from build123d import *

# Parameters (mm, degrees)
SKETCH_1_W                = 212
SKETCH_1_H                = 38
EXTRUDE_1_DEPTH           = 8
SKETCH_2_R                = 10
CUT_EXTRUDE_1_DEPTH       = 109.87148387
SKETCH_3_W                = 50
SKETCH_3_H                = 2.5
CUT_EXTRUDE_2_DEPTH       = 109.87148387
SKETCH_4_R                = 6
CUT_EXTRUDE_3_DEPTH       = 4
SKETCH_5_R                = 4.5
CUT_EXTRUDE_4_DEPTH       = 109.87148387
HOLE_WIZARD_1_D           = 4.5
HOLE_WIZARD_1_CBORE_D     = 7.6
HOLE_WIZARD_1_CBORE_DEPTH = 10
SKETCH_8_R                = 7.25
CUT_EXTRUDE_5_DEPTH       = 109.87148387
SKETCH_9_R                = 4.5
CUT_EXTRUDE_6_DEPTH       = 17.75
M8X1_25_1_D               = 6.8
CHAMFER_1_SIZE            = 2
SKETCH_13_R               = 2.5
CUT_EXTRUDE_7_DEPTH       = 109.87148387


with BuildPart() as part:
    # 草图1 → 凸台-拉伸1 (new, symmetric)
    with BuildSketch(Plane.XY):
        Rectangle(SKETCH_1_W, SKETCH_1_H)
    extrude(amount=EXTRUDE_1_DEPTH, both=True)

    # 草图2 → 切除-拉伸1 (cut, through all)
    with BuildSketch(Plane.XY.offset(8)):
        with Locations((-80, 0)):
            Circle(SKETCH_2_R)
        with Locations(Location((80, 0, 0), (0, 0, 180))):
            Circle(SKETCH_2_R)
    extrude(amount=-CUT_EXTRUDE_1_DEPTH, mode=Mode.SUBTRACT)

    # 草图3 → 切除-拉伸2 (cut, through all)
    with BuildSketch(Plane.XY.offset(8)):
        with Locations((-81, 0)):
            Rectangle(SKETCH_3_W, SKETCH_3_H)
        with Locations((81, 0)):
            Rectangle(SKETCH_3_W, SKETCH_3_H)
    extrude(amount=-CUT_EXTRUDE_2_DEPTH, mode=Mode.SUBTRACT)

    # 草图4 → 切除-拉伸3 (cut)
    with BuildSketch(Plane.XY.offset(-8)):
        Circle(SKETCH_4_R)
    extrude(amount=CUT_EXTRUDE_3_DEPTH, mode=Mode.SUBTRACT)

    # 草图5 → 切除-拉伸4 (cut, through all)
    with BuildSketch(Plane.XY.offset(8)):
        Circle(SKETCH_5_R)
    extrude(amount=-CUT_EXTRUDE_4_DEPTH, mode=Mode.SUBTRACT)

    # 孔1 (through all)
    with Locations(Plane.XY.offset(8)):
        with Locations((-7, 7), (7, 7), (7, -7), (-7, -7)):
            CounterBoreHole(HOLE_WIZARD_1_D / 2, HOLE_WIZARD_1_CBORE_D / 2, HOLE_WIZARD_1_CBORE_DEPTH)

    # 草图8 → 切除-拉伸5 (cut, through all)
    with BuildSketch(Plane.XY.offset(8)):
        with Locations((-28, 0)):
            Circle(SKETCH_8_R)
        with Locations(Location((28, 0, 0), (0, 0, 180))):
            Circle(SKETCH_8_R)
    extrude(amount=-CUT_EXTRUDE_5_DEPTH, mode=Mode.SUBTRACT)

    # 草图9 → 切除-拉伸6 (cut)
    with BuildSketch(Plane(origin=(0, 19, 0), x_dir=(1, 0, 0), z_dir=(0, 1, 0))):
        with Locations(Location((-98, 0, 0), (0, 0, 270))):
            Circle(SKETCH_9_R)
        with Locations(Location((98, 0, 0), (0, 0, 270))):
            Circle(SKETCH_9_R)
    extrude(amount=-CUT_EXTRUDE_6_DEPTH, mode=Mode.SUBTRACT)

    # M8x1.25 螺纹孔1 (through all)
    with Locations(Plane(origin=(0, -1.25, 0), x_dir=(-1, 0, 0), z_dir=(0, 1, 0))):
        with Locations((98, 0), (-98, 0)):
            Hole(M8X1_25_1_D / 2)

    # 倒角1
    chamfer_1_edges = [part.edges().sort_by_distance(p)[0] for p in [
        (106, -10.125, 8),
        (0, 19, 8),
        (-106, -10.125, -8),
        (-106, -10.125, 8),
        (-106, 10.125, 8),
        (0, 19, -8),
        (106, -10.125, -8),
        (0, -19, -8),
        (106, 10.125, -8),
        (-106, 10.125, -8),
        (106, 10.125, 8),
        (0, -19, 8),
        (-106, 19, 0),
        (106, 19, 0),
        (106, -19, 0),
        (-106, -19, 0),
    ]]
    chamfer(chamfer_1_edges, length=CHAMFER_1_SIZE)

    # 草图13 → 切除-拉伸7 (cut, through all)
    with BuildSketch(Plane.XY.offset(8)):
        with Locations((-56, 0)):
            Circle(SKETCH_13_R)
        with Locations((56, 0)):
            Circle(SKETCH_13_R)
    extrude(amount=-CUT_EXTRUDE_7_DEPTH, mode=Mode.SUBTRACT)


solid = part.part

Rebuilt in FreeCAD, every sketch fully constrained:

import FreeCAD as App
import Part
import Sketcher
from FreeCAD import Vector


def edges_at(feature, points):
    """Names of the edges that pass closest to the given points."""
    edges = feature.Shape.Edges
    near = lambda p: min(range(len(edges)), key=lambda i: edges[i].distToShape(Part.Vertex(*p))[0])
    return sorted({f"Edge{near(p) + 1}" for p in points})

doc = App.newDocument("Part")
body = doc.addObject("PartDesign::Body", "Body")

sketch1 = body.newObject("Sketcher::SketchObject", "Sketch")
sketch1.AttachmentSupport = (doc.getObject("XY_Plane"), [""])
sketch1.MapMode = "FlatFace"
sketch1.addGeometry(Part.LineSegment(Vector(-106, 19, 0), Vector(-106, -19, 0)), False)
sketch1.addGeometry(Part.LineSegment(Vector(-106, -19, 0), Vector(106, -19, 0)), False)
sketch1.addGeometry(Part.LineSegment(Vector(106, -19, 0), Vector(106, 19, 0)), False)
sketch1.addGeometry(Part.LineSegment(Vector(106, 19, 0), Vector(-106, 19, 0)), False)
sketch1.addConstraint(Sketcher.Constraint("Coincident", 0, 2, 1, 1))
sketch1.addConstraint(Sketcher.Constraint("Coincident", 1, 2, 2, 1))
sketch1.addConstraint(Sketcher.Constraint("Coincident", 2, 2, 3, 1))
sketch1.addConstraint(Sketcher.Constraint("Coincident", 3, 2, 0, 1))
sketch1.addConstraint(Sketcher.Constraint("Vertical", 0))
sketch1.addConstraint(Sketcher.Constraint("Horizontal", 1))
sketch1.addConstraint(Sketcher.Constraint("Vertical", 2))
sketch1.addConstraint(Sketcher.Constraint("Horizontal", 3))
sketch1.addConstraint(Sketcher.Constraint("Symmetric", 0, 2, 2, 2, -1, 1))
sketch1.addConstraint(Sketcher.Constraint("DistanceX", 1, 1, 1, 2, 212.0))
sketch1.addConstraint(Sketcher.Constraint("DistanceY", 0, 2, 0, 1, 38.0))
pad1 = body.newObject("PartDesign::Pad", "Pad")
pad1.Profile = sketch1
pad1.Length = 16
pad1.Midplane = True

sketch2 = body.newObject("Sketcher::SketchObject", "Sketch001")
sketch2.AttachmentSupport = (doc.getObject("XY_Plane"), [""])
sketch2.MapMode = "FlatFace"
sketch2.AttachmentOffset = App.Placement(Vector(0, 0, 8), App.Rotation())
sketch2.addGeometry(Part.Circle(Vector(-80, 0, 0), Vector(0, 0, 1), 10), False)
sketch2.addGeometry(Part.Circle(Vector(80, 0, 0), Vector(0, 0, 1), 10), False)
sketch2.addConstraint(Sketcher.Constraint("Equal", 0, 1))
sketch2.addConstraint(Sketcher.Constraint("Symmetric", 0, 3, 1, 3, -1, 1))
sketch2.addConstraint(Sketcher.Constraint("PointOnObject", 0, 3, -1))
sketch2.addConstraint(Sketcher.Constraint("Diameter", 0, 20.0))
sketch2.addConstraint(Sketcher.Constraint("DistanceX", 0, 3, -1, 1, 80.0))
pocket1 = body.newObject("PartDesign::Pocket", "Pocket")
pocket1.Profile = sketch2
pocket1.Type = "ThroughAll"

sketch3 = body.newObject("Sketcher::SketchObject", "Sketch002")
sketch3.AttachmentSupport = (doc.getObject("XY_Plane"), [""])
sketch3.MapMode = "FlatFace"
sketch3.AttachmentOffset = App.Placement(Vector(0, 0, 8), App.Rotation())
sketch3.addGeometry(Part.LineSegment(Vector(-106, 1.25, 0), Vector(-106, -1.25, 0)), False)
sketch3.addGeometry(Part.LineSegment(Vector(-106, -1.25, 0), Vector(-56, -1.25, 0)), False)
sketch3.addGeometry(Part.LineSegment(Vector(-56, -1.25, 0), Vector(-56, 1.25, 0)), False)
sketch3.addGeometry(Part.LineSegment(Vector(-56, 1.25, 0), Vector(-106, 1.25, 0)), False)
sketch3.addGeometry(Part.LineSegment(Vector(56, 1.25, 0), Vector(56, -1.25, 0)), False)
sketch3.addGeometry(Part.LineSegment(Vector(56, -1.25, 0), Vector(106, -1.25, 0)), False)
sketch3.addGeometry(Part.LineSegment(Vector(106, -1.25, 0), Vector(106, 1.25, 0)), False)
sketch3.addGeometry(Part.LineSegment(Vector(106, 1.25, 0), Vector(56, 1.25, 0)), False)
sketch3.addConstraint(Sketcher.Constraint("Coincident", 0, 2, 1, 1))
sketch3.addConstraint(Sketcher.Constraint("Coincident", 1, 2, 2, 1))
sketch3.addConstraint(Sketcher.Constraint("Coincident", 2, 2, 3, 1))
sketch3.addConstraint(Sketcher.Constraint("Coincident", 3, 2, 0, 1))
sketch3.addConstraint(Sketcher.Constraint("Coincident", 4, 2, 5, 1))
sketch3.addConstraint(Sketcher.Constraint("Coincident", 5, 2, 6, 1))
sketch3.addConstraint(Sketcher.Constraint("Coincident", 6, 2, 7, 1))
sketch3.addConstraint(Sketcher.Constraint("Coincident", 7, 2, 4, 1))
sketch3.addConstraint(Sketcher.Constraint("Vertical", 0))
sketch3.addConstraint(Sketcher.Constraint("Horizontal", 1))
sketch3.addConstraint(Sketcher.Constraint("Vertical", 2))
sketch3.addConstraint(Sketcher.Constraint("Horizontal", 3))
sketch3.addConstraint(Sketcher.Constraint("Vertical", 4))
sketch3.addConstraint(Sketcher.Constraint("Horizontal", 5))
sketch3.addConstraint(Sketcher.Constraint("Vertical", 6))
sketch3.addConstraint(Sketcher.Constraint("Horizontal", 7))
sketch3.addConstraint(Sketcher.Constraint("Symmetric", 2, 2, 4, 2, -1, 1))
sketch3.addConstraint(Sketcher.Constraint("Symmetric", 0, 2, 6, 2, -1, 1))
sketch3.addConstraint(Sketcher.Constraint("Horizontal", 1, 2, 4, 2))
sketch3.addConstraint(Sketcher.Constraint("DistanceX", 1, 1, 1, 2, 50.0))
sketch3.addConstraint(Sketcher.Constraint("DistanceY", 0, 2, 0, 1, 2.5))
sketch3.addConstraint(Sketcher.Constraint("DistanceX", 0, 2, -1, 1, 106.0))
pocket2 = body.newObject("PartDesign::Pocket", "Pocket001")
pocket2.Profile = sketch3
pocket2.Type = "ThroughAll"

sketch4 = body.newObject("Sketcher::SketchObject", "Sketch003")
sketch4.AttachmentSupport = (doc.getObject("XY_Plane"), [""])
sketch4.MapMode = "FlatFace"
sketch4.AttachmentOffset = App.Placement(Vector(0, 0, -8), App.Rotation())
sketch4.addGeometry(Part.Circle(Vector(0, 0, 0), Vector(0, 0, 1), 6), False)
sketch4.addConstraint(Sketcher.Constraint("Coincident", 0, 3, -1, 1))
sketch4.addConstraint(Sketcher.Constraint("Diameter", 0, 12.0))
pocket3 = body.newObject("PartDesign::Pocket", "Pocket002")
pocket3.Profile = sketch4
pocket3.Length = 4
pocket3.Reversed = True

sketch5 = body.newObject("Sketcher::SketchObject", "Sketch004")
sketch5.AttachmentSupport = (doc.getObject("XY_Plane"), [""])
sketch5.MapMode = "FlatFace"
sketch5.AttachmentOffset = App.Placement(Vector(0, 0, 8), App.Rotation())
sketch5.addGeometry(Part.Circle(Vector(0, 0, 0), Vector(0, 0, 1), 4.5), False)
sketch5.addConstraint(Sketcher.Constraint("Coincident", 0, 3, -1, 1))
sketch5.addConstraint(Sketcher.Constraint("Diameter", 0, 9.0))
pocket4 = body.newObject("PartDesign::Pocket", "Pocket003")
pocket4.Profile = sketch5
pocket4.Type = "ThroughAll"

sketch6 = body.newObject("Sketcher::SketchObject", "Sketch005")
sketch6.AttachmentSupport = (doc.getObject("XY_Plane"), [""])
sketch6.MapMode = "FlatFace"
sketch6.AttachmentOffset = App.Placement(Vector(0, 0, 8), App.Rotation())
sketch6.addGeometry(Part.Circle(Vector(-7, 7, 0), Vector(0, 0, 1), 2.25), False)
sketch6.addGeometry(Part.Circle(Vector(7, 7, 0), Vector(0, 0, 1), 2.25), False)
sketch6.addGeometry(Part.Circle(Vector(7, -7, 0), Vector(0, 0, 1), 2.25), False)
sketch6.addGeometry(Part.Circle(Vector(-7, -7, 0), Vector(0, 0, 1), 2.25), False)
sketch6.addConstraint(Sketcher.Constraint("Equal", 0, 1))
sketch6.addConstraint(Sketcher.Constraint("Equal", 1, 2))
sketch6.addConstraint(Sketcher.Constraint("Equal", 2, 3))
sketch6.addConstraint(Sketcher.Constraint("Symmetric", 0, 3, 2, 3, -1, 1))
sketch6.addConstraint(Sketcher.Constraint("Symmetric", 1, 3, 3, 3, -1, 1))
sketch6.addConstraint(Sketcher.Constraint("Symmetric", 0, 3, 1, 3, -2))
sketch6.addConstraint(Sketcher.Constraint("Diameter", 0, 4.5))
sketch6.addConstraint(Sketcher.Constraint("DistanceX", 0, 3, -1, 1, 7.0))
sketch6.addConstraint(Sketcher.Constraint("DistanceY", -1, 1, 0, 3, 7.0))
doc.recompute()
hole = body.newObject("PartDesign::Hole", "Hole")
hole.Profile = sketch6
hole.ThreadType = "None"
hole.Diameter = 4.5
hole.DepthType = "ThroughAll"
hole.HoleCutType = "Counterbore"
hole.HoleCutDiameter = 7.6
hole.HoleCutDepth = 10

sketch7 = body.newObject("Sketcher::SketchObject", "Sketch006")
sketch7.AttachmentSupport = (doc.getObject("XY_Plane"), [""])
sketch7.MapMode = "FlatFace"
sketch7.AttachmentOffset = App.Placement(Vector(0, 0, 8), App.Rotation())
sketch7.addGeometry(Part.Circle(Vector(-28, 0, 0), Vector(0, 0, 1), 7.25), False)
sketch7.addGeometry(Part.Circle(Vector(28, 0, 0), Vector(0, 0, 1), 7.25), False)
sketch7.addConstraint(Sketcher.Constraint("Equal", 0, 1))
sketch7.addConstraint(Sketcher.Constraint("Symmetric", 0, 3, 1, 3, -1, 1))
sketch7.addConstraint(Sketcher.Constraint("PointOnObject", 0, 3, -1))
sketch7.addConstraint(Sketcher.Constraint("Diameter", 0, 14.5))
sketch7.addConstraint(Sketcher.Constraint("DistanceX", 0, 3, -1, 1, 28.0))
pocket5 = body.newObject("PartDesign::Pocket", "Pocket004")
pocket5.Profile = sketch7
pocket5.Type = "ThroughAll"

sketch8 = body.newObject("Sketcher::SketchObject", "Sketch007")
sketch8.AttachmentSupport = (doc.getObject("XZ_Plane"), [""])
sketch8.MapMode = "FlatFace"
sketch8.AttachmentOffset = App.Placement(Vector(0, 0, -19), App.Rotation())
sketch8.addGeometry(Part.Circle(Vector(-98, 0, 0), Vector(0, 0, 1), 4.5), False)
sketch8.addGeometry(Part.Circle(Vector(98, 0, 0), Vector(0, 0, 1), 4.5), False)
sketch8.addConstraint(Sketcher.Constraint("Equal", 0, 1))
sketch8.addConstraint(Sketcher.Constraint("Symmetric", 0, 3, 1, 3, -1, 1))
sketch8.addConstraint(Sketcher.Constraint("PointOnObject", 0, 3, -1))
sketch8.addConstraint(Sketcher.Constraint("Diameter", 0, 9.0))
sketch8.addConstraint(Sketcher.Constraint("DistanceX", 0, 3, -1, 1, 98.0))
pocket6 = body.newObject("PartDesign::Pocket", "Pocket005")
pocket6.Profile = sketch8
pocket6.Length = 17.75
pocket6.Reversed = True

sketch9 = body.newObject("Sketcher::SketchObject", "Sketch008")
sketch9.AttachmentSupport = (doc.getObject("XZ_Plane"), [""])
sketch9.MapMode = "FlatFace"
sketch9.AttachmentOffset = App.Placement(Vector(0, 0, 1.25), App.Rotation())
sketch9.addGeometry(Part.Circle(Vector(-98, 0, 0), Vector(0, 0, 1), 3.4), False)
sketch9.addGeometry(Part.Circle(Vector(98, 0, 0), Vector(0, 0, 1), 3.4), False)
sketch9.addConstraint(Sketcher.Constraint("Equal", 0, 1))
sketch9.addConstraint(Sketcher.Constraint("Symmetric", 0, 3, 1, 3, -1, 1))
sketch9.addConstraint(Sketcher.Constraint("PointOnObject", 0, 3, -1))
sketch9.addConstraint(Sketcher.Constraint("Diameter", 0, 6.8))
sketch9.addConstraint(Sketcher.Constraint("DistanceX", 0, 3, -1, 1, 98.0))
doc.recompute()
hole2 = body.newObject("PartDesign::Hole", "Hole001")
hole2.Profile = sketch9
hole2.ThreadType = "None"
hole2.Diameter = 6.8
hole2.DepthType = "ThroughAll"
hole2.Reversed = True
doc.recompute()

chamfer = body.newObject("PartDesign::Chamfer", "Chamfer")
chamfer.Base = (hole2, edges_at(hole2, [
    (106, -10.125, 8),
    (0, 19, 8),
    (-106, -10.125, -8),
    (-106, -10.125, 8),
    (-106, 10.125, 8),
    (0, 19, -8),
    (106, -10.125, -8),
    (0, -19, -8),
    (106, 10.125, -8),
    (-106, 10.125, -8),
    (106, 10.125, 8),
    (0, -19, 8),
    (-106, 19, 0),
    (106, 19, 0),
    (106, -19, 0),
    (-106, -19, 0),
]))
chamfer.Size = 2

sketch10 = body.newObject("Sketcher::SketchObject", "Sketch009")
sketch10.AttachmentSupport = (doc.getObject("XY_Plane"), [""])
sketch10.MapMode = "FlatFace"
sketch10.AttachmentOffset = App.Placement(Vector(0, 0, 8), App.Rotation())
sketch10.addGeometry(Part.Circle(Vector(-56, 0, 0), Vector(0, 0, 1), 2.5), False)
sketch10.addGeometry(Part.Circle(Vector(56, 0, 0), Vector(0, 0, 1), 2.5), False)
sketch10.addConstraint(Sketcher.Constraint("Equal", 0, 1))
sketch10.addConstraint(Sketcher.Constraint("Symmetric", 0, 3, 1, 3, -1, 1))
sketch10.addConstraint(Sketcher.Constraint("PointOnObject", 0, 3, -1))
sketch10.addConstraint(Sketcher.Constraint("Diameter", 0, 5.0))
sketch10.addConstraint(Sketcher.Constraint("DistanceX", 0, 3, -1, 1, 56.0))
pocket7 = body.newObject("PartDesign::Pocket", "Pocket006")
pocket7.Profile = sketch10
pocket7.Type = "ThroughAll"

doc.recompute()
